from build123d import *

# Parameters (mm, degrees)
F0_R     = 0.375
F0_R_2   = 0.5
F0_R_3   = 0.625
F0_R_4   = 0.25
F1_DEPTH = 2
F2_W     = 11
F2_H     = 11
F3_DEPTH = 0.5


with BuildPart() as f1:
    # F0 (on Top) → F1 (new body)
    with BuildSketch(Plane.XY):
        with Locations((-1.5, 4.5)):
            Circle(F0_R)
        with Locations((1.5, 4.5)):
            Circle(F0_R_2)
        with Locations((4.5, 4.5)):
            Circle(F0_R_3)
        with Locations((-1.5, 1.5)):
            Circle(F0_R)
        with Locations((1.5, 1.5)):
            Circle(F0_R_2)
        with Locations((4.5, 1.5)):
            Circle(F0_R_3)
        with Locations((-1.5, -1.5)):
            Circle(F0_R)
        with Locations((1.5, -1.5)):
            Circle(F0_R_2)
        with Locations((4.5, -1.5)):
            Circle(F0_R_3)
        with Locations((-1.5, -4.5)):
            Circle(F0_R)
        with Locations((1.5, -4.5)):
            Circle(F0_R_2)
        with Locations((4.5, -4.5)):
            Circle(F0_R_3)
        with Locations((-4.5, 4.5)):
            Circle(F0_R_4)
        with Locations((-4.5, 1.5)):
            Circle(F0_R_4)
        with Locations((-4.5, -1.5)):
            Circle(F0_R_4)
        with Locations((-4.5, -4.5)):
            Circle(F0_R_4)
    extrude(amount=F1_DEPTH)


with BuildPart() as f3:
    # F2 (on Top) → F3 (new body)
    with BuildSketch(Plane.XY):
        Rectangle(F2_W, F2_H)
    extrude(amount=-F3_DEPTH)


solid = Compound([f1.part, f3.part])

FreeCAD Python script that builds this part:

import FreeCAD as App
import Part
import Sketcher

V = App.Vector


def add_polygon(sketch, points):
    """Adds a closed chain of lines whose ends are joined by coincident constraints."""
    first, n = sketch.GeometryCount, len(points)
    for a, b in zip(points, points[1:] + points[:1]):
        sketch.addGeometry(Part.LineSegment(App.Vector(*a, 0), App.Vector(*b, 0)), False)
    for i in range(n):
        sketch.addConstraint(Sketcher.Constraint("Coincident", first + i, 2, first + (i + 1) % n, 1))

doc = App.newDocument("Part")
body = doc.addObject("PartDesign::Body", "Body")
body.AllowCompound = True

# Sketch on XY plane
sketch1 = body.newObject("Sketcher::SketchObject", "Sketch")
sketch1.AttachmentSupport = (doc.getObject("XY_Plane"), [""])
sketch1.MapMode = "FlatFace"
sketch1.addGeometry([
    Part.Circle(V(-1.5, 4.5, 0), V(0, 0, 1), 0.38),  # 0
    Part.Circle(V(1.5, 4.5, 0), V(0, 0, 1), 0.5),  # 1
    Part.Circle(V(4.5, 4.5, 0), V(0, 0, 1), 0.62),  # 2
    Part.Circle(V(-1.5, 1.5, 0), V(0, 0, 1), 0.38),  # 3
    Part.Circle(V(1.5, 1.5, 0), V(0, 0, 1), 0.5),  # 4
    Part.Circle(V(4.5, 1.5, 0), V(0, 0, 1), 0.62),  # 5
    Part.Circle(V(-1.5, -1.5, 0), V(0, 0, 1), 0.38),  # 6
    Part.Circle(V(1.5, -1.5, 0), V(0, 0, 1), 0.5),  # 7
    Part.Circle(V(4.5, -1.5, 0), V(0, 0, 1), 0.62),  # 8
    Part.Circle(V(-1.5, -4.5, 0), V(0, 0, 1), 0.38),  # 9
    Part.Circle(V(1.5, -4.5, 0), V(0, 0, 1), 0.5),  # 10
    Part.Circle(V(4.5, -4.5, 0), V(0, 0, 1), 0.62),  # 11
    Part.Circle(V(-4.5, 4.5, 0), V(0, 0, 1), 0.25),  # 12
    Part.Circle(V(-4.5, 1.5, 0), V(0, 0, 1), 0.25),  # 13
    Part.Circle(V(-4.5, -1.5, 0), V(0, 0, 1), 0.25),  # 14
    Part.Circle(V(-4.5, -4.5, 0), V(0, 0, 1), 0.25),  # 15
], False)
sketch1.addConstraint([
    Sketcher.Constraint("Equal", 0, 3),
    Sketcher.Constraint("Equal", 1, 4),
    Sketcher.Constraint("Equal", 2, 5),
    Sketcher.Constraint("Equal", 3, 6),
    Sketcher.Constraint("Equal", 4, 7),
    Sketcher.Constraint("Equal", 5, 8),
    Sketcher.Constraint("Equal", 6, 9),
    Sketcher.Constraint("Equal", 7, 10),
    Sketcher.Constraint("Equal", 8, 11),
    Sketcher.Constraint("Equal", 12, 13),
    Sketcher.Constraint("Equal", 13, 14),
    Sketcher.Constraint("Equal", 14, 15),
    Sketcher.Constraint("Symmetric", 4, 3, 6, 3, -1, 1),
    Sketcher.Constraint("Symmetric", 3, 3, 7, 3, -1, 1),
    Sketcher.Constraint("Symmetric", 1, 3, 9, 3, -1, 1),
    Sketcher.Constraint("Symmetric", 0, 3, 10, 3, -1, 1),
    Sketcher.Constraint("Symmetric", 11, 3, 12, 3, -1, 1),
    Sketcher.Constraint("Symmetric", 8, 3, 13, 3, -1, 1),
    Sketcher.Constraint("Symmetric", 5, 3, 14, 3, -1, 1),
    Sketcher.Constraint("Symmetric", 2, 3, 15, 3, -1, 1),
    Sketcher.Constraint("Symmetric", 0, 3, 1, 3, -2),
    Sketcher.Constraint("Symmetric", 3, 3, 4, 3, -2),
    Sketcher.Constraint("Symmetric", 2, 3, 12, 3, -2),
    Sketcher.Constraint("Symmetric", 5, 3, 13, 3, -2),
    Sketcher.Constraint("Horizontal", 1, 3, 2, 3),
    Sketcher.Constraint("Horizontal", 4, 3, 5, 3),
    Sketcher.Constraint("Vertical", 0, 3, 3, 3),
    Sketcher.Constraint("Vertical", 2, 3, 5, 3),
    Sketcher.Constraint("Diameter", 1, 1.0),
    Sketcher.Constraint("Diameter", 12, 0.5),
    Sketcher.Constraint("Diameter", 0, 0.75),
    Sketcher.Constraint("Diameter", 2, 1.25),
    Sketcher.Constraint("DistanceX", 0, 3, 1, 3, 3.0),
    Sketcher.Constraint("DistanceX", 1, 3, 2, 3, 3.0),
    Sketcher.Constraint("DistanceY", 3, 3, 0, 3, 3.0),
    Sketcher.Constraint("DistanceY", 6, 3, 3, 3, 3.0),
])
pad1 = body.newObject("PartDesign::Pad", "Pad")
pad1.Profile = sketch1
pad1.Length = 2
body2 = doc.addObject("PartDesign::Body", "Body001")

# Sketch on XY plane
sketch2 = body2.newObject("Sketcher::SketchObject", "Sketch001")
sketch2.AttachmentSupport = (doc.getObject("XY_Plane001"), [""])
sketch2.MapMode = "FlatFace"
add_polygon(sketch2, [(-6, 6), (-6, -6), (6, -6), (6, 6)])  # lines 0-3
sketch2.addConstraint([
    Sketcher.Constraint("Vertical", 0),
    Sketcher.Constraint("Horizontal", 1),
    Sketcher.Constraint("Vertical", 2),
    Sketcher.Constraint("Horizontal", 3),
    Sketcher.Constraint("Symmetric", 0, 2, 2, 2, -1, 1),
    Sketcher.Constraint("Equal", 3, 0),
    Sketcher.Constraint("DistanceX", 1, 1, 1, 2, 11.0),
])
pad2 = body2.newObject("PartDesign::Pad", "Pad001")
pad2.Profile = sketch2
pad2.Length = 0.5
pad2.Reversed = True

doc.recompute()
